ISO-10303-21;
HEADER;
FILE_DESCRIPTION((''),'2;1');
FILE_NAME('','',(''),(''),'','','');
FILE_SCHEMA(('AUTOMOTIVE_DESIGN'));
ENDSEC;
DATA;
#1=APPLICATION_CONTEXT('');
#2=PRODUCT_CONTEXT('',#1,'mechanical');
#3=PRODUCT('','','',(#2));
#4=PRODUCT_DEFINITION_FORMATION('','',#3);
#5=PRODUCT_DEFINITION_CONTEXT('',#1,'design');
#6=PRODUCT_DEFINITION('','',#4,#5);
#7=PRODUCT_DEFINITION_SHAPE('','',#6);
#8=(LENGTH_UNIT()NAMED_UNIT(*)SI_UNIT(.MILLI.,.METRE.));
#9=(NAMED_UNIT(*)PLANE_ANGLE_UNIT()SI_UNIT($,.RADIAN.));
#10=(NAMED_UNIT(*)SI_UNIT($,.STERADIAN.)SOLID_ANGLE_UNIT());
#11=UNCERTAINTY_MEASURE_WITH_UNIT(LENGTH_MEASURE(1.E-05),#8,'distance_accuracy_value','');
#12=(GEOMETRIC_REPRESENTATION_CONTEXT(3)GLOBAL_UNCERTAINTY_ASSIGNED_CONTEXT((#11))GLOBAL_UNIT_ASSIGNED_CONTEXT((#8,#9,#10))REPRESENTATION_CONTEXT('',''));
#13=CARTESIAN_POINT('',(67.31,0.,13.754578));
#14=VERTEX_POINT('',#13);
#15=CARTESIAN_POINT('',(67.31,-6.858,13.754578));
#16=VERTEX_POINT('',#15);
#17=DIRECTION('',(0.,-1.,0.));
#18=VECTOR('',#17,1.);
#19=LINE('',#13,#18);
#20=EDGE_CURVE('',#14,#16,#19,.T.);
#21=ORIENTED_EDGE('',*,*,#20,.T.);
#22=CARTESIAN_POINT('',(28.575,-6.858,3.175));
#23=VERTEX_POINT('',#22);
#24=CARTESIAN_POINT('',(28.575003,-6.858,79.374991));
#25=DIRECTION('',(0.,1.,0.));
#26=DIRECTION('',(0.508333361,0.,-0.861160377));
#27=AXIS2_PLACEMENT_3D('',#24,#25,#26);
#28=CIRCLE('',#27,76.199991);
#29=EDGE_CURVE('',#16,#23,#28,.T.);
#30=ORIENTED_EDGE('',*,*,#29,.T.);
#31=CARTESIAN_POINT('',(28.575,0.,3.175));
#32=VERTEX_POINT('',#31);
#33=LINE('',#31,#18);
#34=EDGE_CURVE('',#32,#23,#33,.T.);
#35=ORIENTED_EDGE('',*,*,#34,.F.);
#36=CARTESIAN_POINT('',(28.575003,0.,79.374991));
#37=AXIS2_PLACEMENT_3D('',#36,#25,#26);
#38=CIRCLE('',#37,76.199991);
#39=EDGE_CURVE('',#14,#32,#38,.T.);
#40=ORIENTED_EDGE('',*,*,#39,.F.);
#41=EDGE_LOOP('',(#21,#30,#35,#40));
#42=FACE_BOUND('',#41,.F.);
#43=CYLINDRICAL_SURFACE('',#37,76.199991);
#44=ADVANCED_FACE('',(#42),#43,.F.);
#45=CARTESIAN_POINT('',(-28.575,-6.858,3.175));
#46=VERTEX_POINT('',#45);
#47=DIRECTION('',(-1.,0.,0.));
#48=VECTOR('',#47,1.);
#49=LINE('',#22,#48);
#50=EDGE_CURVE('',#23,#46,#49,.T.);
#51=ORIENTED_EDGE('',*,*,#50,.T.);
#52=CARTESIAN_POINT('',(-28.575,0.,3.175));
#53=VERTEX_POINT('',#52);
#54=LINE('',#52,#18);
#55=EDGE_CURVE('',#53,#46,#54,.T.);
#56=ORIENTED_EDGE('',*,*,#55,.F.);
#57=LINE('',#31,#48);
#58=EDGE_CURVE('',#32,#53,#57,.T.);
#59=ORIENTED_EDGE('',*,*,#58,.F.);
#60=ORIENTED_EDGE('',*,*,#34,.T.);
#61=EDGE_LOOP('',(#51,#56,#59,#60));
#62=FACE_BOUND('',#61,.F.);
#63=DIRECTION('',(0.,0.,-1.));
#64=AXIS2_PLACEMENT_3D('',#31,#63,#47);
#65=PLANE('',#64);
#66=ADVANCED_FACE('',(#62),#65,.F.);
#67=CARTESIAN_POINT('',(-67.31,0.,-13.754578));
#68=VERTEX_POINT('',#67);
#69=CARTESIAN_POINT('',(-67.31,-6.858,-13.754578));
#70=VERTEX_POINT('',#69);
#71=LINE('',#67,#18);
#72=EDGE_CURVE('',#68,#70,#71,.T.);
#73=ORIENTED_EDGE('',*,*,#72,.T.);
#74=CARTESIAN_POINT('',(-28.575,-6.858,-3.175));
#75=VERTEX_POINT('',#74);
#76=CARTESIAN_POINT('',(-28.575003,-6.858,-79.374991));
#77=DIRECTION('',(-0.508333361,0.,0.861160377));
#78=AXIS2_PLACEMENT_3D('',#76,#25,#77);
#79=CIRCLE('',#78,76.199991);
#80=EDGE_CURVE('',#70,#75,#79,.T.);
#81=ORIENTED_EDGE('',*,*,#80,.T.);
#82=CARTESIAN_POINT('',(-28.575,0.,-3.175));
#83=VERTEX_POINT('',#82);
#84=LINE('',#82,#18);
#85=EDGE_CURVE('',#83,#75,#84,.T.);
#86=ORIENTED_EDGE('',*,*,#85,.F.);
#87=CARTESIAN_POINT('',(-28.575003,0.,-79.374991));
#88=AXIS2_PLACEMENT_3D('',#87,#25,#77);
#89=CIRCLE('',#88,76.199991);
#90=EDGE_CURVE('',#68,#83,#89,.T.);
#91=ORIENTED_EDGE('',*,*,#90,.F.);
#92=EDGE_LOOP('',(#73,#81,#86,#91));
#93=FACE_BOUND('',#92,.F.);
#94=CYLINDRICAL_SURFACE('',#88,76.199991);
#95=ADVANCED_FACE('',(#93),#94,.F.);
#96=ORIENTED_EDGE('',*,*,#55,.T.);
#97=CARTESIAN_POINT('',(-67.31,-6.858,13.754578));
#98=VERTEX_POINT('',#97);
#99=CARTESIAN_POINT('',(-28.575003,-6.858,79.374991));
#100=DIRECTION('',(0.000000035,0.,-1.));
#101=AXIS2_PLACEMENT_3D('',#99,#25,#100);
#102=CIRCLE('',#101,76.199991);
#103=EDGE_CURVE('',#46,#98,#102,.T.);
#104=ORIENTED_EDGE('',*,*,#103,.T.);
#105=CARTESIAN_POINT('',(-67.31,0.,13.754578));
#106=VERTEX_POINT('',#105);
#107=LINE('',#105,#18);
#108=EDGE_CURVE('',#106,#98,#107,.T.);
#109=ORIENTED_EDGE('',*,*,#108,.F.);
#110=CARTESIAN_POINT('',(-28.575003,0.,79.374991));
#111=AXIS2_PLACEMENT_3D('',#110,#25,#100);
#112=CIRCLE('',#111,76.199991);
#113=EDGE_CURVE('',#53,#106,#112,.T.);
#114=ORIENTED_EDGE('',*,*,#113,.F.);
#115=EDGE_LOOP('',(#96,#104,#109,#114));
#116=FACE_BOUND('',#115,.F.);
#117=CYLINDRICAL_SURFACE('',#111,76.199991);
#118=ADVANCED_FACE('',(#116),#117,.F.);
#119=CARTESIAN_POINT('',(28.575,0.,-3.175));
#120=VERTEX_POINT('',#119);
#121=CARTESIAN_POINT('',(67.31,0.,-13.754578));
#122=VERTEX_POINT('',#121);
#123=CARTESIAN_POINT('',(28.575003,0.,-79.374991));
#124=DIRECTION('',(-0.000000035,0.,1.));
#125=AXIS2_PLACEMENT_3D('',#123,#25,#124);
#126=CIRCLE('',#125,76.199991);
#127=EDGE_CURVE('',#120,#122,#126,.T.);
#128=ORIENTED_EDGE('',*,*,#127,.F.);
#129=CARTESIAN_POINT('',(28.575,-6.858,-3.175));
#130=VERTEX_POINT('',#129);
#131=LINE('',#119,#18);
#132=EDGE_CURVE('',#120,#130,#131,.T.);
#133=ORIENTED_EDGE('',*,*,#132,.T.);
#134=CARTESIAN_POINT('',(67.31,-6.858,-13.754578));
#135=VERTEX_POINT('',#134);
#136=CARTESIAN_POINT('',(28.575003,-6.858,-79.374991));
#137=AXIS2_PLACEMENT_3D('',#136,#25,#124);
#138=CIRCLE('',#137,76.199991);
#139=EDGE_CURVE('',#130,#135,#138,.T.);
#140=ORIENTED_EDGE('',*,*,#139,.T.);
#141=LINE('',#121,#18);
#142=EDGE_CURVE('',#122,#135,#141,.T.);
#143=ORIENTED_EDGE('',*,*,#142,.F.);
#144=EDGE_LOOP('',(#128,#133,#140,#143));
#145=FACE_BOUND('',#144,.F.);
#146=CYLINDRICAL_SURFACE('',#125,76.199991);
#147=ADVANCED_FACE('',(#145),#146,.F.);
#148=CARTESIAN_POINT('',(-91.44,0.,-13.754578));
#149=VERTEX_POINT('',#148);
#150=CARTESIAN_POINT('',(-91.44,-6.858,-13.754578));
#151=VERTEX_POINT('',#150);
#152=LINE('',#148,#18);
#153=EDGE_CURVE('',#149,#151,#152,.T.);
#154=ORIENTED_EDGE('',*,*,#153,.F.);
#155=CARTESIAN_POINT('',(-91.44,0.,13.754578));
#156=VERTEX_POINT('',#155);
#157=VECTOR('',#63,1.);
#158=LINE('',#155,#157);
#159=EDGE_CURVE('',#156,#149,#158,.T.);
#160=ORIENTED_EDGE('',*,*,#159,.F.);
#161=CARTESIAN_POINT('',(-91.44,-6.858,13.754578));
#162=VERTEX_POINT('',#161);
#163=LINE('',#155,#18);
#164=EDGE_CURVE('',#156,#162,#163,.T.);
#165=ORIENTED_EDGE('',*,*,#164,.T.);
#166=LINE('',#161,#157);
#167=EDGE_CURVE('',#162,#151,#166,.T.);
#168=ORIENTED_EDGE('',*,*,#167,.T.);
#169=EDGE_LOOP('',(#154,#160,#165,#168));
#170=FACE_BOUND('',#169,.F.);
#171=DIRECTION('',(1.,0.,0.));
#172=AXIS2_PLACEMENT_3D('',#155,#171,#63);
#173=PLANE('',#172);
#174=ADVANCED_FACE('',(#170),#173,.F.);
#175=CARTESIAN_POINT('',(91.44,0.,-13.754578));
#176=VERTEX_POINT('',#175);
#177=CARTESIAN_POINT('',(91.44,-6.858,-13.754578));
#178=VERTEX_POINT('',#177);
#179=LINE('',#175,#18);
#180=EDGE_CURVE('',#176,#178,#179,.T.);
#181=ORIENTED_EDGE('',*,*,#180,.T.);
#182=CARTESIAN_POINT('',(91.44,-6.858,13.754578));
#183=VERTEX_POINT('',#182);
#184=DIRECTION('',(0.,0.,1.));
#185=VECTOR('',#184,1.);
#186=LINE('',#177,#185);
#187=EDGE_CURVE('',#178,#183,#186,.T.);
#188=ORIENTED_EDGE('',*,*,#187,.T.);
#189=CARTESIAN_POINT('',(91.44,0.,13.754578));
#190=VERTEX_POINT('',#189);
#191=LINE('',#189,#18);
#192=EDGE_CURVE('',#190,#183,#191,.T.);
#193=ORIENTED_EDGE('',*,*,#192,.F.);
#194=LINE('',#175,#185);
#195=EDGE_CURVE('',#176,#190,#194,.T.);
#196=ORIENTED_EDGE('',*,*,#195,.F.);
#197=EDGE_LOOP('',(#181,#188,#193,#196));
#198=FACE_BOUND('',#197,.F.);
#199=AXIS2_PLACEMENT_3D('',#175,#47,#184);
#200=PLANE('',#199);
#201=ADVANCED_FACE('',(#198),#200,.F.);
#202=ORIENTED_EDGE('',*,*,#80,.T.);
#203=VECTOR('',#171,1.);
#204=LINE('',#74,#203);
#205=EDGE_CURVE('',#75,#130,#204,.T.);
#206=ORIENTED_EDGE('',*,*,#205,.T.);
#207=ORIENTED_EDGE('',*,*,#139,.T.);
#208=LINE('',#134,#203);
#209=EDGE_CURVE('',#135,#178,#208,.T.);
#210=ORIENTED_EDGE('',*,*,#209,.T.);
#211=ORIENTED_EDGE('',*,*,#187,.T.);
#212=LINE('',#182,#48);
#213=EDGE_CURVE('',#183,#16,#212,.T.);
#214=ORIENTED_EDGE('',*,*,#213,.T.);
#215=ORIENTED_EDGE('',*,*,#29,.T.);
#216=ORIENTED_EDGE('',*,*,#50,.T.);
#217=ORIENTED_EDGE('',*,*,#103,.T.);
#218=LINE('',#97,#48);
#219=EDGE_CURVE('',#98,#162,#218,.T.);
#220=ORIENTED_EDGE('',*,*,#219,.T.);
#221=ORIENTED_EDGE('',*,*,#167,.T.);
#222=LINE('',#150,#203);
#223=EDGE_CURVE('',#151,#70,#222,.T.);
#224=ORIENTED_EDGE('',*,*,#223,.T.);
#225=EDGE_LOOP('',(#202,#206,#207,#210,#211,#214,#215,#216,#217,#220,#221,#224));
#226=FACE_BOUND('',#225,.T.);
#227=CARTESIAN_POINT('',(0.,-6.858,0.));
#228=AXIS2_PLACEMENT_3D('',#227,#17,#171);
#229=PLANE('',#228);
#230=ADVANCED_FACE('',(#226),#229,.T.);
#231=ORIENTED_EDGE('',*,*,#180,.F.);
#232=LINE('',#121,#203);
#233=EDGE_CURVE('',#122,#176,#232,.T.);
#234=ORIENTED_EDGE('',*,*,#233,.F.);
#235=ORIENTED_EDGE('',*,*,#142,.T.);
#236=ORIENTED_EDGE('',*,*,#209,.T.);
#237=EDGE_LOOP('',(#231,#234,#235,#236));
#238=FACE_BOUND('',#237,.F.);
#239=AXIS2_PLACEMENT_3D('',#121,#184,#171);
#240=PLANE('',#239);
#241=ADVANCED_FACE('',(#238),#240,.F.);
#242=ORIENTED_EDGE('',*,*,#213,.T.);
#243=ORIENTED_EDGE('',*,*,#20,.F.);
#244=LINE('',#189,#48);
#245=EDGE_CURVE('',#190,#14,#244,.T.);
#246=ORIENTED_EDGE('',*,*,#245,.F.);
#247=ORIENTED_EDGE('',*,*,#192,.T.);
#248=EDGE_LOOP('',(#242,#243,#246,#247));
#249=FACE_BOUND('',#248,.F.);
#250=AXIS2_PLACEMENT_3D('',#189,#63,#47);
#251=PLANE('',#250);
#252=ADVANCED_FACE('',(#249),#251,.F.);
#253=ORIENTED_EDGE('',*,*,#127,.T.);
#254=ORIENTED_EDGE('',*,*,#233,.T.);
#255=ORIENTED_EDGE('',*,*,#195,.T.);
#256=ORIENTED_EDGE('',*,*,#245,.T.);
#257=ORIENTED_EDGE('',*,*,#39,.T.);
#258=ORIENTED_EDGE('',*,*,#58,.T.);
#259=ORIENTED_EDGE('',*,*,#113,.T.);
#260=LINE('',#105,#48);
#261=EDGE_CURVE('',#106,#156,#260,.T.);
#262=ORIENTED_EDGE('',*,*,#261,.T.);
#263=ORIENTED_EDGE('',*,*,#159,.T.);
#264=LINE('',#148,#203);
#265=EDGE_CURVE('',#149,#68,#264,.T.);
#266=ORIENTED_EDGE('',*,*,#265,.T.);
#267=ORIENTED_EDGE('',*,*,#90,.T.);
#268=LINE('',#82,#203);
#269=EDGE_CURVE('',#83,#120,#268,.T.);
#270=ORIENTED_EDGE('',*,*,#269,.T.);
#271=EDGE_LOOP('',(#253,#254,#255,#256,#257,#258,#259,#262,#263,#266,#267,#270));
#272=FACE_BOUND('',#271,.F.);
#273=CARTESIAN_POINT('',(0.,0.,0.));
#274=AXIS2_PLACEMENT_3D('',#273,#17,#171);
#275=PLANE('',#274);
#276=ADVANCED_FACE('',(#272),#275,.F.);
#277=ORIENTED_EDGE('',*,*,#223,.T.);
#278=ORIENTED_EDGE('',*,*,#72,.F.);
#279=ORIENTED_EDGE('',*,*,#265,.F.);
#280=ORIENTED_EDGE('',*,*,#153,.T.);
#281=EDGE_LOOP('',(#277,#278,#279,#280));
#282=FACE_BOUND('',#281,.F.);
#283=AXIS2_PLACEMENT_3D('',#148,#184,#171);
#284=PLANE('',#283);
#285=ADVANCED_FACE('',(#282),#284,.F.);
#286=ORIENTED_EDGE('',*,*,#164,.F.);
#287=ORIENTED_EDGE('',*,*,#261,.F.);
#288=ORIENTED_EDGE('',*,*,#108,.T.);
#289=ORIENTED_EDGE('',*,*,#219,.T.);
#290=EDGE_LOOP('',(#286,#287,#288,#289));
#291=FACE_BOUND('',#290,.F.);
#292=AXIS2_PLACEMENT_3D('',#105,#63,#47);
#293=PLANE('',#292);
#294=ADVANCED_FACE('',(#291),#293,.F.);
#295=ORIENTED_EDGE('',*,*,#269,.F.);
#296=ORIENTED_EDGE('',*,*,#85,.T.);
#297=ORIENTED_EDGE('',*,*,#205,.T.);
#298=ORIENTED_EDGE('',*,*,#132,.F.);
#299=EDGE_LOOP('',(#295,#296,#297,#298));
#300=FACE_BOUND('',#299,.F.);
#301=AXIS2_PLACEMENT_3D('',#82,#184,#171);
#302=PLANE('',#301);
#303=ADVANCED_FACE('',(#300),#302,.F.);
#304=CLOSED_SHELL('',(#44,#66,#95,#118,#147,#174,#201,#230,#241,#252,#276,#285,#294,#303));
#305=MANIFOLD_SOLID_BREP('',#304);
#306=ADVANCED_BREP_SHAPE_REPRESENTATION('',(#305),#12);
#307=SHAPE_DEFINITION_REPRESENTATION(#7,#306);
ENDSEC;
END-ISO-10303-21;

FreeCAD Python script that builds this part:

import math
import FreeCAD as App
import Part
import Sketcher

V = App.Vector
Q = App.Units.Quantity

doc = App.newDocument("Part")
body = doc.addObject("PartDesign::Body", "Body")

sketch1 = doc.addObject("Sketcher::SketchObject", "Sketch")
body.addObject(sketch1)
sketch1.AttachmentSupport = (doc.XZ_Plane, [""])
sketch1.MapMode = "FlatFace"
sketch1.addGeometry([
    Part.LineSegment(V(29, 3, 0), V(-29, 3, 0)),
    Part.ArcOfCircle(Part.Circle(V(-29, 79, 0), V(0, 0, 1), 76), math.radians(-121), math.radians(-90)),
    Part.LineSegment(V(-67, 14, 0), V(-91, 14, 0)),
    Part.LineSegment(V(-91, 14, 0), V(-91, -14, 0)),
    Part.LineSegment(V(-91, -14, 0), V(-67, -14, 0)),
    Part.ArcOfCircle(Part.Circle(V(-29, -79, 0), V(0, 0, 1), 76), math.radians(90), math.radians(121)),
    Part.LineSegment(V(-29, -3, 0), V(29, -3, 0)),
    Part.ArcOfCircle(Part.Circle(V(29, -79, 0), V(0, 0, 1), 76), math.radians(59), math.radians(90)),
    Part.LineSegment(V(67, -14, 0), V(91, -14, 0)),
    Part.LineSegment(V(91, -14, 0), V(91, 14, 0)),
    Part.LineSegment(V(91, 14, 0), V(67, 14, 0)),
    Part.ArcOfCircle(Part.Circle(V(29, 79, 0), V(0, 0, 1), 76), math.radians(-90), math.radians(-59)),
], False)
sketch1.addConstraint([
    Sketcher.Constraint("Tangent", 0, 2, 1, 2),
    Sketcher.Constraint("Coincident", 1, 1, 2, 1),
    Sketcher.Constraint("Coincident", 2, 2, 3, 1),
    Sketcher.Constraint("Coincident", 3, 2, 4, 1),
    Sketcher.Constraint("Coincident", 4, 2, 5, 2),
    Sketcher.Constraint("Tangent", 5, 1, 6, 1),
    Sketcher.Constraint("Tangent", 6, 2, 7, 2),
    Sketcher.Constraint("Coincident", 7, 1, 8, 1),
    Sketcher.Constraint("Coincident", 8, 2, 9, 1),
    Sketcher.Constraint("Coincident", 9, 2, 10, 1),
    Sketcher.Constraint("Coincident", 10, 2, 11, 2),
    Sketcher.Constraint("Tangent", 11, 1, 0, 1),
    Sketcher.Constraint("Horizontal", 0),
    Sketcher.Constraint("Horizontal", 2),
    Sketcher.Constraint("Vertical", 3),
    Sketcher.Constraint("Horizontal", 4),
    Sketcher.Constraint("Horizontal", 6),
    Sketcher.Constraint("Horizontal", 8),
    Sketcher.Constraint("Vertical", 9),
    Sketcher.Constraint("Horizontal", 10),
    Sketcher.Constraint("Equal", 1, 5),
    Sketcher.Constraint("Equal", 5, 7),
    Sketcher.Constraint("Equal", 7, 11),
    Sketcher.Constraint("Symmetric", 1, 3, 7, 3, -1, 1),
    Sketcher.Constraint("Symmetric", 2, 2, 8, 2, -1, 1),
    Sketcher.Constraint("Symmetric", 4, 2, 10, 2, -1, 1),
    Sketcher.Constraint("Symmetric", 4, 2, 7, 1, -2),
    Sketcher.Constraint("DistanceX", 0, 2, 0, 1, Q("2.25 in")),
    Sketcher.Constraint("DistanceX", 2, 2, 2, 1, Q("0.95 in")),
    Sketcher.Constraint("DistanceX", 2, 2, -1, 1, Q("3.6 in")),
    Sketcher.Constraint("DistanceY", 5, 1, 0, 2, Q("0.25 in")),
    Sketcher.Constraint("Radius", 1, Q("76.199991 mm")),
])
pad1 = doc.addObject("PartDesign::Pad", "Pad")
body.addObject(pad1)
pad1.Profile = sketch1
pad1.Length = Q("0.27 in")

doc.recompute()
